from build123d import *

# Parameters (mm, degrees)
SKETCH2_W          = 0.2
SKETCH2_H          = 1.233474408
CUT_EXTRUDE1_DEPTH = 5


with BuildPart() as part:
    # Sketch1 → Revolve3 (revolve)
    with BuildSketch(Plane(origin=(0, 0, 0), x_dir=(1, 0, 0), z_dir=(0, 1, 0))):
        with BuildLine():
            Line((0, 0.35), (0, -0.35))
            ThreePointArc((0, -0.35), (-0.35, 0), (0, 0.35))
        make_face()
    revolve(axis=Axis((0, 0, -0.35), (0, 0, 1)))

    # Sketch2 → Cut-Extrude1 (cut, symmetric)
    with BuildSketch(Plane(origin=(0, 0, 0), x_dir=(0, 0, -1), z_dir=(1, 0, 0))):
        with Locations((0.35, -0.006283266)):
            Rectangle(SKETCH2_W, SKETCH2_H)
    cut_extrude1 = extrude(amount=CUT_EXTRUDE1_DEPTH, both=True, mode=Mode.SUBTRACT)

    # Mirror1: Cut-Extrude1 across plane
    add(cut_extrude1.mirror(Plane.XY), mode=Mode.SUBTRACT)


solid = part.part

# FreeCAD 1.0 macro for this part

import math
import FreeCAD as App
import Part
import Sketcher

V = App.Vector

doc = App.newDocument("Part")
params = doc.addObject("Spreadsheet::Sheet", "Params")
for row, (alias, value) in enumerate([
    ("sketch1_radius", "0.35 mm"),
    ("revolution_angle", "360 deg"),
    ("sketch2_height", "0.2 mm"),
    ("pocket1_length", "10 mm"),
], start=1):
    params.set(f"A{row}", alias)
    params.set(f"B{row}", "=" + value)
    params.setAlias(f"B{row}", alias)

body = doc.addObject("PartDesign::Body", "Body")

sketch1 = body.newObject("Sketcher::SketchObject", "Sketch")
sketch1.AttachmentSupport = (doc.getObject("XZ_Plane"), [""])
sketch1.MapMode = "FlatFace"
sketch1.addGeometry(Part.LineSegment(V(0, 0.35, 0), V(0, -0.35, 0)), False)
sketch1.addGeometry(Part.ArcOfCircle(Part.Circle(V(0, 0, 0), V(0, 0, 1), 0.35), math.radians(90), math.radians(270)), False)
sketch1.addConstraint(Sketcher.Constraint("Coincident", 0, 1, 1, 1))
sketch1.addConstraint(Sketcher.Constraint("Coincident", 1, 2, 0, 2))
sketch1.addConstraint(Sketcher.Constraint("Vertical", 0))
sketch1.addConstraint(Sketcher.Constraint("Coincident", 1, 3, -1, 1))
sketch1.addConstraint(Sketcher.Constraint("PointOnObject", 0, 1, -2))
sketch1.addConstraint(Sketcher.Constraint("Radius", 1, 0.35))
sketch1.setExpression("Constraints[5]", "Params.sketch1_radius")
revolution = body.newObject("PartDesign::Revolution", "Revolution")
revolution.Profile = sketch1
revolution.ReferenceAxis = (sketch1, ["V_Axis"])
revolution.setExpression("Angle", "Params.revolution_angle")

sketch2 = body.newObject("Sketcher::SketchObject", "Sketch001")
sketch2.AttachmentSupport = (doc.getObject("YZ_Plane"), [""])
sketch2.MapMode = "FlatFace"
sketch2.addGeometry(Part.LineSegment(V(0.61, -0.25, 0), V(-0.62, -0.25, 0)), False)
sketch2.addGeometry(Part.LineSegment(V(-0.62, -0.25, 0), V(-0.62, -0.45, 0)), False)
sketch2.addGeometry(Part.LineSegment(V(-0.62, -0.45, 0), V(0.61, -0.45, 0)), False)
sketch2.addGeometry(Part.LineSegment(V(0.61, -0.45, 0), V(0.61, -0.25, 0)), False)
sketch2.addConstraint(Sketcher.Constraint("Coincident", 0, 2, 1, 1))
sketch2.addConstraint(Sketcher.Constraint("Coincident", 1, 2, 2, 1))
sketch2.addConstraint(Sketcher.Constraint("Coincident", 2, 2, 3, 1))
sketch2.addConstraint(Sketcher.Constraint("Coincident", 3, 2, 0, 1))
sketch2.addConstraint(Sketcher.Constraint("Horizontal", 0))
sketch2.addConstraint(Sketcher.Constraint("Vertical", 1))
sketch2.addConstraint(Sketcher.Constraint("Horizontal", 2))
sketch2.addConstraint(Sketcher.Constraint("Vertical", 3))
sketch2.addConstraint(Sketcher.Constraint("DistanceY", 1, 2, 1, 1, 0.2))
sketch2.addConstraint(Sketcher.Constraint("DistanceY", 0, 2, -1, 1, 0.25))
sketch2.addConstraint(Sketcher.Constraint("DistanceX", 0, 2, 0, 1, 1.233474))
sketch2.addConstraint(Sketcher.Constraint("DistanceX", 0, 2, -1, 1, 0.62302))
sketch2.setExpression("Constraints[8]", "Params.sketch2_height")
pocket1 = body.newObject("PartDesign::Pocket", "Pocket")
pocket1.Profile = sketch2
pocket1.setExpression("Length", "Params.pocket1_length")
pocket1.Midplane = True
doc.recompute()

mirrored = body.newObject("PartDesign::Mirrored", "Mirrored")
mirrored.Originals = [pocket1]
mirrored.MirrorPlane = (doc.getObject("XY_Plane"), [""])
body.Tip = mirrored

doc.recompute()
